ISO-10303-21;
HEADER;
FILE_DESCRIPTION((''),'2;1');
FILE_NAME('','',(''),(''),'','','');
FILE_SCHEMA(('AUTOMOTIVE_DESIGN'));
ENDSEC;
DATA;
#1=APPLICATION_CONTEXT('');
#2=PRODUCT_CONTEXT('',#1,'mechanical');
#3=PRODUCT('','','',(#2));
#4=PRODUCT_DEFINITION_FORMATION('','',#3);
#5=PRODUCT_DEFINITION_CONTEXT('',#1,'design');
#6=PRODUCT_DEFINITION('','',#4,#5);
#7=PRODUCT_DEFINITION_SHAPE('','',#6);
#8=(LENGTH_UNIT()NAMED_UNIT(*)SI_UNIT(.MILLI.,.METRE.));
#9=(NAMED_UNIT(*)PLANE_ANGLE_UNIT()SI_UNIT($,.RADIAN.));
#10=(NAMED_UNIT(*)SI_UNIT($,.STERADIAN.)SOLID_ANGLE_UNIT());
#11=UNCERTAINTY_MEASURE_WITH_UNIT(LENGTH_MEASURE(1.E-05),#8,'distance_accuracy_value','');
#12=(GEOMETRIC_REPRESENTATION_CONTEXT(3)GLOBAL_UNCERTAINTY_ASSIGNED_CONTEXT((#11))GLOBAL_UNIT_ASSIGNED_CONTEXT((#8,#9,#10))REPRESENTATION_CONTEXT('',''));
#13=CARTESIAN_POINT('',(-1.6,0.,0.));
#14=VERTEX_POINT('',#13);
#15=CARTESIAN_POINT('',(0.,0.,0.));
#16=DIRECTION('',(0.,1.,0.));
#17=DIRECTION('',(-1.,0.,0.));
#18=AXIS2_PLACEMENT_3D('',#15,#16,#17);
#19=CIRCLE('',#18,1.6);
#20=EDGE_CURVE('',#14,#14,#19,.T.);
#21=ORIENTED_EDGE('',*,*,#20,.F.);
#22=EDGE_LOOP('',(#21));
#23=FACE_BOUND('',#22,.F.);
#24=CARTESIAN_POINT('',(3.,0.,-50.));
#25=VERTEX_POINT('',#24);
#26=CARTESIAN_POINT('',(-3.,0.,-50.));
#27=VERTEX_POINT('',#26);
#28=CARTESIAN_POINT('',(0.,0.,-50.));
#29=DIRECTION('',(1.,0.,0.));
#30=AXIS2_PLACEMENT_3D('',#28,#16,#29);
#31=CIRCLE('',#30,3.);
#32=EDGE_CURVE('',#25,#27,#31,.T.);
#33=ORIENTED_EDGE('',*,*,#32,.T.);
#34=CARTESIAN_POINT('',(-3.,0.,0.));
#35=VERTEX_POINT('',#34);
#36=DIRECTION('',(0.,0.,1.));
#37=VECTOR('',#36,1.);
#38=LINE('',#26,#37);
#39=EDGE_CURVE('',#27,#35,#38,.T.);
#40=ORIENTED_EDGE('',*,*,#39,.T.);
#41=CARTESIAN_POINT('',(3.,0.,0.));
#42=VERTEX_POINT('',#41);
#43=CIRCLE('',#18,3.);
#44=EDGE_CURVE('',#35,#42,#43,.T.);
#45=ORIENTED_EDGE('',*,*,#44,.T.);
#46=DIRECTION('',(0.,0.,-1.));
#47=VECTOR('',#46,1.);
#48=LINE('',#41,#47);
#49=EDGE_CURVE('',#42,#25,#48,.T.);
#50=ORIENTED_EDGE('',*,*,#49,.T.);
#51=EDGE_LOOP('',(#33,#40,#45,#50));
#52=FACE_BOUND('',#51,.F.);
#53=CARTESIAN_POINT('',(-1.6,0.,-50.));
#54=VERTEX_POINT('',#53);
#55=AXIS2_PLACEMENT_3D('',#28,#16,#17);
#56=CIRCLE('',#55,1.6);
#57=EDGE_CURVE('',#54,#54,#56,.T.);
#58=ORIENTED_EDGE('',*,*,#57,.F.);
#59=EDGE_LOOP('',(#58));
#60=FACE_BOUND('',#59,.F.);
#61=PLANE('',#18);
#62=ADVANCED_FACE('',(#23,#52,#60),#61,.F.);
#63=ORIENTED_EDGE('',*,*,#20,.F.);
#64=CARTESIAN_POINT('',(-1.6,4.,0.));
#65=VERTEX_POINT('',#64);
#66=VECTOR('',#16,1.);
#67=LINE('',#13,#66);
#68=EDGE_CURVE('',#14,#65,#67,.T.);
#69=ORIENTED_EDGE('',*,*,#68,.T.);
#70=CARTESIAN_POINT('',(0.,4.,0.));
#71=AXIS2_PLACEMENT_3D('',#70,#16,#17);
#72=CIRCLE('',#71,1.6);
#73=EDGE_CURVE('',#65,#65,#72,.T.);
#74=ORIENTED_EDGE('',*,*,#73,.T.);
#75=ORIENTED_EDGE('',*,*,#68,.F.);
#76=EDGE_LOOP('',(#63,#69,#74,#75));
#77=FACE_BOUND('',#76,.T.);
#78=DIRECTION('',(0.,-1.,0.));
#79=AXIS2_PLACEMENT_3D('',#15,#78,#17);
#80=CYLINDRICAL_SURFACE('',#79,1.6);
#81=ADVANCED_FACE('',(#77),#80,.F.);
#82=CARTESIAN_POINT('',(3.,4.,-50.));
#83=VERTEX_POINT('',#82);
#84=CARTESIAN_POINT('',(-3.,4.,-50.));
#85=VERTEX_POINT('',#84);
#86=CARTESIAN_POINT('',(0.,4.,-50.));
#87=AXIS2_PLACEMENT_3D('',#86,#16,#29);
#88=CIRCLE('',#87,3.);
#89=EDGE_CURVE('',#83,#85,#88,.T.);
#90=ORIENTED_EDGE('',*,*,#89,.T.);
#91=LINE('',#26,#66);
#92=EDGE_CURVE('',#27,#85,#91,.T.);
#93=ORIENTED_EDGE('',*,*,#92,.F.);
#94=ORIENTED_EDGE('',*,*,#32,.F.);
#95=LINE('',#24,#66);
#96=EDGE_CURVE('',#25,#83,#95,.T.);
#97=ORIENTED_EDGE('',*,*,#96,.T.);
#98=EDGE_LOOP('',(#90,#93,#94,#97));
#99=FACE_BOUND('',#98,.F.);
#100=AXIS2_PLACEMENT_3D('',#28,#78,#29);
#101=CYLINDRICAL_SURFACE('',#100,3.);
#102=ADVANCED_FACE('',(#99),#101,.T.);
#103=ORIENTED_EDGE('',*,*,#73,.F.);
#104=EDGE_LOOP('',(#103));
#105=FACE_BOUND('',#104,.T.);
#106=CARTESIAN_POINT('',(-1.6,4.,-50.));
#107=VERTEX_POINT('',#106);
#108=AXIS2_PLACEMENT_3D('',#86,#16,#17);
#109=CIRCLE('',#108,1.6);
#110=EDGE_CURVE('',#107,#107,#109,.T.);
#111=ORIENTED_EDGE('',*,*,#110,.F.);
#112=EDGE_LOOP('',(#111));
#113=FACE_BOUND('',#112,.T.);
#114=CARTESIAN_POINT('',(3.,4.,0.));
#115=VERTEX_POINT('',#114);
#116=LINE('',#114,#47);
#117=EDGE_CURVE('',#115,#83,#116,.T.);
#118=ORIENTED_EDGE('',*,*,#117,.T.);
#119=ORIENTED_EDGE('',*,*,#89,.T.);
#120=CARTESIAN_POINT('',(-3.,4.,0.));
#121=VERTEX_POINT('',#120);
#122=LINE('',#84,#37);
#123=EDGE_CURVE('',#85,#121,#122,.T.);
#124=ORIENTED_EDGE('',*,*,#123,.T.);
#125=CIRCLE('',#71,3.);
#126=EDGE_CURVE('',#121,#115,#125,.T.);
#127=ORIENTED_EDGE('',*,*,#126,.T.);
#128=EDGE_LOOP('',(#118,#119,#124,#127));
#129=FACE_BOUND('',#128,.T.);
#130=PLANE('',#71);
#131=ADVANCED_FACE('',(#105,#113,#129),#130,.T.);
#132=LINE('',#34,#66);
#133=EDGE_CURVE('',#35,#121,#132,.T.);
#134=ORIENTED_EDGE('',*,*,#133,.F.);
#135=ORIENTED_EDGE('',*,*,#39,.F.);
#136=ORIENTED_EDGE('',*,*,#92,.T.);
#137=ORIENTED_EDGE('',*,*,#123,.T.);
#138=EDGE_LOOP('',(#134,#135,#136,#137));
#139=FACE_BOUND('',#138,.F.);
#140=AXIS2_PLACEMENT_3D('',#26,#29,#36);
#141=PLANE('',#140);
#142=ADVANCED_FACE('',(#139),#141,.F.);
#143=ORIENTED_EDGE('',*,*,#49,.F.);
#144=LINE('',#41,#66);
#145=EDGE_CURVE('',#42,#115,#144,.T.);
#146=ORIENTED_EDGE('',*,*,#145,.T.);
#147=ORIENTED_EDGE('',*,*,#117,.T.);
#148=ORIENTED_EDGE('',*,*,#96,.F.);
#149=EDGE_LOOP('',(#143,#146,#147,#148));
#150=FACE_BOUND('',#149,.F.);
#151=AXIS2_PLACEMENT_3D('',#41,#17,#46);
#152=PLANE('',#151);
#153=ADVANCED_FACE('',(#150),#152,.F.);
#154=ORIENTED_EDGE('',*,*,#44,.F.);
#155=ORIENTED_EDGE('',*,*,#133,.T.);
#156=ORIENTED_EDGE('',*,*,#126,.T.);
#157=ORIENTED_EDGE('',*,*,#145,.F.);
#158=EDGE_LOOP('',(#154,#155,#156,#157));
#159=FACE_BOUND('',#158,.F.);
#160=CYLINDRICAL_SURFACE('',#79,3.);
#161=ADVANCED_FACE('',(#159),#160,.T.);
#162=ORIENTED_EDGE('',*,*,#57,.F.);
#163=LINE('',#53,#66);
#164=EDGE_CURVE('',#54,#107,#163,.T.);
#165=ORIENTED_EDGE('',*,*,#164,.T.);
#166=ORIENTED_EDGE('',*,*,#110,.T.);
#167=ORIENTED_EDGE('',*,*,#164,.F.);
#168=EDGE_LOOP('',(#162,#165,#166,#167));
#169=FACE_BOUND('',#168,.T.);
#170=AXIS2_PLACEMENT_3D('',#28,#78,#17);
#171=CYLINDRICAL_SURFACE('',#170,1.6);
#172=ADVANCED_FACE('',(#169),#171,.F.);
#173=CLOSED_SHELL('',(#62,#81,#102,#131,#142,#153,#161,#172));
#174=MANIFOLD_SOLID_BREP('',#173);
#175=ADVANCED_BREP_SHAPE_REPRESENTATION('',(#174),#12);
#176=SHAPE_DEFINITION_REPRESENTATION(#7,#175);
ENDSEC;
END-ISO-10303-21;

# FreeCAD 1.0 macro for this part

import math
import FreeCAD as App
import Part
import Sketcher

V = App.Vector

doc = App.newDocument("Part")
body = doc.addObject("PartDesign::Body", "Body")

sketch1 = body.newObject("Sketcher::SketchObject", "Sketch")
sketch1.AttachmentSupport = (doc.getObject("XZ_Plane"), [""])
sketch1.MapMode = "FlatFace"
sketch1.addGeometry([
    Part.ArcOfCircle(Part.Circle(V(0, 0, 0), V(0, 0, 1), 3), math.radians(0), math.radians(180)),
    Part.LineSegment(V(3, 0, 0), V(3, -50, 0)),
    Part.ArcOfCircle(Part.Circle(V(0, -50, 0), V(0, 0, 1), 3), math.radians(180), math.radians(360)),
    Part.LineSegment(V(-3, -50, 0), V(-3, 0, 0)),
    Part.Circle(V(0, -50, 0), V(0, 0, 1), 1.6),
    Part.Circle(V(0, 0, 0), V(0, 0, 1), 1.6),
], False)
sketch1.addConstraint([
    Sketcher.Constraint("Tangent", 0, 1, 1, 1),
    Sketcher.Constraint("Tangent", 1, 2, 2, 2),
    Sketcher.Constraint("Tangent", 2, 1, 3, 1),
    Sketcher.Constraint("Tangent", 3, 2, 0, 2),
    Sketcher.Constraint("Vertical", 1),
    Sketcher.Constraint("Vertical", 3),
    Sketcher.Constraint("Coincident", 0, 3, -1, 1),
    Sketcher.Constraint("Coincident", 5, 3, -1, 1),
    Sketcher.Constraint("Coincident", 4, 3, 2, 3),
    Sketcher.Constraint("Equal", 4, 5),
    Sketcher.Constraint("Radius", 0, 3.0),
    Sketcher.Constraint("Diameter", 4, 3.2),
    Sketcher.Constraint("DistanceY", 1, 2, 1, 1, 50.0),
])
pad1 = body.newObject("PartDesign::Pad", "Pad")
pad1.Profile = sketch1
pad1.Length = 4
pad1.Reversed = True

doc.recompute()
